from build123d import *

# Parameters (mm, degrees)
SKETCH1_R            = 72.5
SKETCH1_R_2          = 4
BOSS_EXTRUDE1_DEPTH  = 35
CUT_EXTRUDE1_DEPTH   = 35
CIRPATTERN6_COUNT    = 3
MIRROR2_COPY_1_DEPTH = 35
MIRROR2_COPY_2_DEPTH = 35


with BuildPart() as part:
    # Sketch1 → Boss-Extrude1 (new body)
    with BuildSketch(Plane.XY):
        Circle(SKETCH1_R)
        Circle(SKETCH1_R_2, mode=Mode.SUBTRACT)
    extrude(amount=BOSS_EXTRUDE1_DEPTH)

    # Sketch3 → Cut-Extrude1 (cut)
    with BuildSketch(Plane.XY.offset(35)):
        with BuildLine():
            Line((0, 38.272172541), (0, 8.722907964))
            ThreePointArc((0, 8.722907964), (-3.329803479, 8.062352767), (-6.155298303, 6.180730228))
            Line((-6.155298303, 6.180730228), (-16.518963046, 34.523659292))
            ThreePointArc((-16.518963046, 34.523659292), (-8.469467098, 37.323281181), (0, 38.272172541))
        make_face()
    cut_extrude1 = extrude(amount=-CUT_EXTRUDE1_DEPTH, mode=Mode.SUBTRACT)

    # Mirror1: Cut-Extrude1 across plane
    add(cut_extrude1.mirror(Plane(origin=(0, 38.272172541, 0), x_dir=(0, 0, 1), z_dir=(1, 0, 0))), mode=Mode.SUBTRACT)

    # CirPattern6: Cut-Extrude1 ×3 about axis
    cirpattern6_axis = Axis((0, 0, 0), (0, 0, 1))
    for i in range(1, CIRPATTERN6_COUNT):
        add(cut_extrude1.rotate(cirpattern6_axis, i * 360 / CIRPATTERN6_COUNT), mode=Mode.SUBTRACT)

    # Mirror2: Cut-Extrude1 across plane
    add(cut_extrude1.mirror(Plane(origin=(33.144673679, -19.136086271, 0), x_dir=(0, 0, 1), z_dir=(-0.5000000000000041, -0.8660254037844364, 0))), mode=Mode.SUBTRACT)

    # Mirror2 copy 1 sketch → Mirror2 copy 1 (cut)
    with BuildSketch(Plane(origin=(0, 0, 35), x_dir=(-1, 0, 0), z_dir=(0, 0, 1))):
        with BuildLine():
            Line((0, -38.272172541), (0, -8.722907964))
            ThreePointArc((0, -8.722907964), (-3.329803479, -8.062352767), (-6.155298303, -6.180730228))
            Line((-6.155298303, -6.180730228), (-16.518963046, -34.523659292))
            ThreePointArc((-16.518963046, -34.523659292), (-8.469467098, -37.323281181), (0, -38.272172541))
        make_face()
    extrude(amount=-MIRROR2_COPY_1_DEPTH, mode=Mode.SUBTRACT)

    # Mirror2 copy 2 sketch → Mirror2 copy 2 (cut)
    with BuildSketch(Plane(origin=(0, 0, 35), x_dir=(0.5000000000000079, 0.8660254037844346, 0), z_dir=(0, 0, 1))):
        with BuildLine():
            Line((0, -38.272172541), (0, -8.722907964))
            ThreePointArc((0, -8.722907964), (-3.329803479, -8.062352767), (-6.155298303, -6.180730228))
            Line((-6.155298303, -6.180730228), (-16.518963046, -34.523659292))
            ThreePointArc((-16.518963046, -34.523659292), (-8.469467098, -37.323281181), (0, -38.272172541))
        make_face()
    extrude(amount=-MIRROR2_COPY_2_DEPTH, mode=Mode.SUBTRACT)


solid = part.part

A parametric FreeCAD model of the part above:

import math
import FreeCAD as App
import Part
import Sketcher

V = App.Vector
Q = App.Units.Quantity

doc = App.newDocument("Part")
body = doc.addObject("PartDesign::Body", "Body")

# Sketch on XY plane
sketch1 = body.newObject("Sketcher::SketchObject", "Sketch")
sketch1.AttachmentSupport = (doc.getObject("XY_Plane"), [""])
sketch1.MapMode = "FlatFace"
sketch1.addGeometry([
    Part.Circle(V(0, 0, 0), V(0, 0, 1), 72.5),
    Part.Circle(V(0, 0, 0), V(0, 0, 1), 4),
], False)
sketch1.addConstraint([
    Sketcher.Constraint("Coincident", 0, 3, -1, 1),
    Sketcher.Constraint("Coincident", 1, 3, -1, 1),
    Sketcher.Constraint("Diameter", 0, 145.0),
    Sketcher.Constraint("Diameter", 1, 8.0),
])
pad1 = body.newObject("PartDesign::Pad", "Pad")
pad1.Profile = sketch1
pad1.Length = 35

# Sketch on XY plane
sketch2 = body.newObject("Sketcher::SketchObject", "Sketch001")
sketch2.AttachmentSupport = (doc.getObject("XY_Plane"), [""])
sketch2.MapMode = "FlatFace"
sketch2.AttachmentOffset = App.Placement(V(0, 0, 35), App.Rotation())
sketch2.addGeometry([
    Part.LineSegment(V(0, 9, 0), V(0, 38, 0)),
    Part.ArcOfCircle(Part.Circle(V(0, 0, 0), V(0, 0, 1), 38), math.radians(90), math.radians(116)),
    Part.LineSegment(V(-17, 35, 0), V(-6, 6, 0)),
    Part.ArcOfCircle(Part.Circle(V(0, 0, 0), V(0, 0, 1), 9), math.radians(90), math.radians(135)),
], False)
sketch2.addConstraint([
    Sketcher.Constraint("Coincident", 0, 2, 1, 1),
    Sketcher.Constraint("Coincident", 1, 2, 2, 1),
    Sketcher.Constraint("Coincident", 2, 2, 3, 2),
    Sketcher.Constraint("Coincident", 3, 1, 0, 1),
    Sketcher.Constraint("Vertical", 0),
    Sketcher.Constraint("Coincident", 1, 3, -1, 1),
    Sketcher.Constraint("Coincident", 3, 3, -1, 1),
    Sketcher.Constraint("PointOnObject", 0, 2, -2),
    Sketcher.Constraint("Radius", 1, 38.272173),
    Sketcher.Constraint("Radius", 3, 8.722908),
    Sketcher.Constraint("DistanceX", 2, 2, -1, 1, 6.155298),
    Sketcher.Constraint("DistanceY", -1, 1, 1, 2, 34.523659),
])
pocket1 = body.newObject("PartDesign::Pocket", "Pocket")
pocket1.Profile = sketch2
pocket1.Length = 35
doc.recompute()

mirrored = body.newObject("PartDesign::Mirrored", "Mirrored")
mirrored.Originals = [pocket1]
mirrored.MirrorPlane = (doc.getObject("YZ_Plane"), [""])
body.Tip = mirrored
doc.recompute()

polarpattern = body.newObject("PartDesign::PolarPattern", "PolarPattern")
polarpattern.Originals = [pocket1]
polarpattern.Axis = (doc.getObject("Z_Axis"), [""])
polarpattern.Angle = 360
polarpattern.Occurrences = 3
body.Tip = polarpattern
doc.recompute()

datumplane = body.newObject("PartDesign::Plane", "DatumPlane")
datumplane.Placement = App.Placement(V(0, 0, 0), App.Rotation(V(-0.866025404, 0.5, 0), V(0, 0, -1), V(-0.5, -0.866025404, 0), "ZXY"))
mirrored2 = body.newObject("PartDesign::Mirrored", "Mirrored001")
mirrored2.Originals = [pocket1]
mirrored2.MirrorPlane = (datumplane, [""])
body.Tip = mirrored2

# Sketch on XY plane
sketch3 = body.newObject("Sketcher::SketchObject", "Sketch002")
sketch3.AttachmentSupport = (doc.getObject("XY_Plane"), [""])
sketch3.MapMode = "FlatFace"
sketch3.AttachmentOffset = App.Placement(V(0, 0, 35), App.Rotation())
sketch3.addGeometry([
    Part.LineSegment(V(0, 38, 0), V(0, 9, 0)),
    Part.ArcOfCircle(Part.Circle(V(0, 0, 0), V(0, 0, 1), 9), math.radians(45), math.radians(90)),
    Part.LineSegment(V(6, 6, 0), V(17, 35, 0)),
    Part.ArcOfCircle(Part.Circle(V(0, 0, 0), V(0, 0, 1), 38), math.radians(64), math.radians(90)),
], False)
sketch3.addConstraint([
    Sketcher.Constraint("Coincident", 0, 2, 1, 2),
    Sketcher.Constraint("Coincident", 1, 1, 2, 1),
    Sketcher.Constraint("Coincident", 2, 2, 3, 1),
    Sketcher.Constraint("Coincident", 3, 2, 0, 1),
    Sketcher.Constraint("Vertical", 0),
    Sketcher.Constraint("Coincident", 1, 3, -1, 1),
    Sketcher.Constraint("Coincident", 3, 3, -1, 1),
    Sketcher.Constraint("PointOnObject", 0, 2, -2),
    Sketcher.Constraint("Radius", 1, 8.722908),
    Sketcher.Constraint("Radius", 3, 38.272173),
    Sketcher.Constraint("DistanceX", -1, 1, 1, 1, 6.155298),
    Sketcher.Constraint("DistanceY", -1, 1, 2, 2, 34.523659),
])
pocket2 = body.newObject("PartDesign::Pocket", "Pocket001")
pocket2.Profile = sketch3
pocket2.Length = 35

# Sketch on XY plane
sketch4 = body.newObject("Sketcher::SketchObject", "Sketch003")
sketch4.AttachmentSupport = (doc.getObject("XY_Plane"), [""])
sketch4.MapMode = "FlatFace"
sketch4.AttachmentOffset = App.Placement(V(0, 0, 35), App.Rotation())
sketch4.addGeometry([
    Part.LineSegment(V(33, -19, 0), V(8, -4, 0)),
    Part.ArcOfCircle(Part.Circle(V(0, 0, 0), V(0, 0, 1), 9), math.radians(-75), math.radians(-30)),
    Part.LineSegment(V(2, -8, 0), V(22, -32, 0)),
    Part.ArcOfCircle(Part.Circle(V(0, 0, 0), V(0, 0, 1), 38), math.radians(-56), math.radians(-30)),
], False)
sketch4.addConstraint([
    Sketcher.Constraint("Coincident", 0, 2, 1, 2),
    Sketcher.Constraint("Coincident", 1, 1, 2, 1),
    Sketcher.Constraint("Coincident", 2, 2, 3, 1),
    Sketcher.Constraint("Coincident", 3, 2, 0, 1),
    Sketcher.Constraint("Coincident", 1, 3, -1, 1),
    Sketcher.Constraint("Coincident", 3, 3, -1, 1),
    Sketcher.Constraint("Angle", 0, Q("150 deg")),
    Sketcher.Constraint("Radius", 1, 8.722908),
    Sketcher.Constraint("Radius", 3, 38.272173),
    Sketcher.Constraint("DistanceX", -1, 1, 0, 2, 7.55426),
    Sketcher.Constraint("DistanceX", -1, 1, 1, 1, 2.27502),
    Sketcher.Constraint("DistanceY", 2, 2, -1, 1, 31.567671),
])
pocket3 = body.newObject("PartDesign::Pocket", "Pocket002")
pocket3.Profile = sketch4
pocket3.Length = 35

doc.recompute()
